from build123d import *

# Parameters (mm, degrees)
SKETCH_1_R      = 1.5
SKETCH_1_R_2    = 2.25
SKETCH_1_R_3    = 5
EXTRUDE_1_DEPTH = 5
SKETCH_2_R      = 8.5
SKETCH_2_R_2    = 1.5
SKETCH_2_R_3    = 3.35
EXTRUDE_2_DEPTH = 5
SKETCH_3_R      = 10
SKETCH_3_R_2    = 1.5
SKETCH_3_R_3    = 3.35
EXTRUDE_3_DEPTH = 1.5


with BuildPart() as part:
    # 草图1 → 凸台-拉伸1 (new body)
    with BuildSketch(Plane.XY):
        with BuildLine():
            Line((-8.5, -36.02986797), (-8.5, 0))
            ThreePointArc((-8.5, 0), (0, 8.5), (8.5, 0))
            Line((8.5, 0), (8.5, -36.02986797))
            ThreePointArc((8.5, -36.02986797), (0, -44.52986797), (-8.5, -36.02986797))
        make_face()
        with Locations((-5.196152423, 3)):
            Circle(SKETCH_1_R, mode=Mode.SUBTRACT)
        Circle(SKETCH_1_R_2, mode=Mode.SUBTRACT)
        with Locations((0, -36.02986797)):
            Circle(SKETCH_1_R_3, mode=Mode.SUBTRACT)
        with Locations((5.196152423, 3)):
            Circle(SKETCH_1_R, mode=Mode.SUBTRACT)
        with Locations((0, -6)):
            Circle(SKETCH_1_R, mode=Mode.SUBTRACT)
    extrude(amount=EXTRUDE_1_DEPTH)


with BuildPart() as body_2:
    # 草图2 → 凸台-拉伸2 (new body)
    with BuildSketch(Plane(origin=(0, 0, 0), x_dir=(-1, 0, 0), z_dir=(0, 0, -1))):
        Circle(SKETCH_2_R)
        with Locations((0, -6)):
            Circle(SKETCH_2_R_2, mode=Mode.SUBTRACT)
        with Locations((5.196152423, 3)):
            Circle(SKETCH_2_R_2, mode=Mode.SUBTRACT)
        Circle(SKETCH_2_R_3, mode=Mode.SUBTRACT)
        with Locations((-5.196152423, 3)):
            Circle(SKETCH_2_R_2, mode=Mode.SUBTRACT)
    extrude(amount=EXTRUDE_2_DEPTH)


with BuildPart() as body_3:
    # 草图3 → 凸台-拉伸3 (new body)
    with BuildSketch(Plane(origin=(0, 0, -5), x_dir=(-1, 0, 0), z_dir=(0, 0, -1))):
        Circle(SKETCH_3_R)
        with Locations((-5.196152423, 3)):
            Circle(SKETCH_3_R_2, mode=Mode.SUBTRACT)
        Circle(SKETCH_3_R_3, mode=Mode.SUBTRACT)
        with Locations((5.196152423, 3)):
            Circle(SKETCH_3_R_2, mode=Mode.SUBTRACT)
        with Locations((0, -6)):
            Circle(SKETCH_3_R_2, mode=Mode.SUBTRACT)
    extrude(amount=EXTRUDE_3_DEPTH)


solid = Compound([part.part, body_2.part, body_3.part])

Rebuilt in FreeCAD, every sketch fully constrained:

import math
import FreeCAD as App
import Part
import Sketcher

V = App.Vector
Q = App.Units.Quantity

doc = App.newDocument("Part")
body = doc.addObject("PartDesign::Body", "Body")

# Sketch on XY plane
sketch1 = body.newObject("Sketcher::SketchObject", "Sketch")
sketch1.AttachmentSupport = (doc.getObject("XY_Plane"), [""])
sketch1.MapMode = "FlatFace"
sketch1.addGeometry([
    Part.LineSegment(V(-8.5, 0, 0), V(-8.5, -36, 0)),  # 0
    Part.ArcOfCircle(Part.Circle(V(0, -36, 0), V(0, 0, 1), 8.5), math.radians(180), math.radians(360)),  # 1
    Part.LineSegment(V(8.5, -36, 0), V(8.5, 0, 0)),  # 2
    Part.ArcOfCircle(Part.Circle(V(0, 0, 0), V(0, 0, 1), 8.5), math.radians(0), math.radians(180)),  # 3
    Part.Circle(V(0, -36, 0), V(0, 0, 1), 5),  # 4
    Part.Circle(V(5.2, 3, 0), V(0, 0, 1), 1.5),  # 5
    Part.Circle(V(0, -6, 0), V(0, 0, 1), 1.5),  # 6
    Part.Circle(V(0, 0, 0), V(0, 0, 1), 2.2),  # 7
    Part.Circle(V(-5.2, 3, 0), V(0, 0, 1), 1.5),  # 8
], False)
sketch1.addConstraint([
    Sketcher.Constraint("Tangent", 0, 2, 1, 1),
    Sketcher.Constraint("Tangent", 1, 2, 2, 1),
    Sketcher.Constraint("Tangent", 2, 2, 3, 1),
    Sketcher.Constraint("Tangent", 3, 2, 0, 1),
    Sketcher.Constraint("Vertical", 0),
    Sketcher.Constraint("Vertical", 2),
    Sketcher.Constraint("Coincident", 3, 3, -1, 1),
    Sketcher.Constraint("Coincident", 7, 3, -1, 1),
    Sketcher.Constraint("Coincident", 4, 3, 1, 3),
    Sketcher.Constraint("Equal", 5, 6),
    Sketcher.Constraint("Equal", 6, 8),
    Sketcher.Constraint("Symmetric", 5, 3, 8, 3, -2),
    Sketcher.Constraint("PointOnObject", 6, 3, -2),
    Sketcher.Constraint("Diameter", 4, Q("10 mm")),
    Sketcher.Constraint("Diameter", 5, Q("3 mm")),
    Sketcher.Constraint("Diameter", 7, Q("4.5 mm")),
    Sketcher.Constraint("Radius", 1, Q("8.5 mm")),
    Sketcher.Constraint("DistanceY", -1, 1, 5, 3, Q("3 mm")),
    Sketcher.Constraint("DistanceY", 6, 3, -1, 1, Q("6 mm")),
    Sketcher.Constraint("DistanceY", 0, 2, 0, 1, Q("36.029868 mm")),
    Sketcher.Constraint("DistanceX", -1, 1, 5, 3, Q("5.196152 mm")),
])
pad1 = body.newObject("PartDesign::Pad", "Pad")
pad1.Profile = sketch1
pad1.Length = 5
body2 = doc.addObject("PartDesign::Body", "Body001")

# Sketch on XY plane
sketch2 = body2.newObject("Sketcher::SketchObject", "Sketch001")
sketch2.AttachmentSupport = (doc.getObject("XY_Plane001"), [""])
sketch2.MapMode = "FlatFace"
sketch2.addGeometry([
    Part.Circle(V(0, 0, 0), V(0, 0, 1), 8.5),  # 0
    Part.Circle(V(0, -6, 0), V(0, 0, 1), 1.5),  # 1
    Part.Circle(V(0, 0, 0), V(0, 0, 1), 3.4),  # 2
    Part.Circle(V(5.2, 3, 0), V(0, 0, 1), 1.5),  # 3
    Part.Circle(V(-5.2, 3, 0), V(0, 0, 1), 1.5),  # 4
], False)
sketch2.addConstraint([
    Sketcher.Constraint("Coincident", 0, 3, -1, 1),
    Sketcher.Constraint("Coincident", 2, 3, -1, 1),
    Sketcher.Constraint("Equal", 1, 3),
    Sketcher.Constraint("Equal", 3, 4),
    Sketcher.Constraint("Symmetric", 3, 3, 4, 3, -2),
    Sketcher.Constraint("PointOnObject", 1, 3, -2),
    Sketcher.Constraint("Diameter", 0, Q("17 mm")),
    Sketcher.Constraint("Diameter", 1, Q("3 mm")),
    Sketcher.Constraint("Diameter", 2, Q("6.7 mm")),
    Sketcher.Constraint("DistanceY", 1, 3, -1, 1, Q("6 mm")),
    Sketcher.Constraint("DistanceY", -1, 1, 3, 3, Q("3 mm")),
    Sketcher.Constraint("DistanceX", -1, 1, 3, 3, Q("5.196152 mm")),
])
pad2 = body2.newObject("PartDesign::Pad", "Pad001")
pad2.Profile = sketch2
pad2.Length = 5
pad2.Reversed = True
body3 = doc.addObject("PartDesign::Body", "Body002")

# Sketch on XY plane
sketch3 = body3.newObject("Sketcher::SketchObject", "Sketch002")
sketch3.AttachmentSupport = (doc.getObject("XY_Plane002"), [""])
sketch3.MapMode = "FlatFace"
sketch3.AttachmentOffset = App.Placement(V(0, 0, -5), App.Rotation())
sketch3.addGeometry([
    Part.Circle(V(0, 0, 0), V(0, 0, 1), 10),  # 0
    Part.Circle(V(0, -6, 0), V(0, 0, 1), 1.5),  # 1
    Part.Circle(V(0, 0, 0), V(0, 0, 1), 3.4),  # 2
    Part.Circle(V(5.2, 3, 0), V(0, 0, 1), 1.5),  # 3
    Part.Circle(V(-5.2, 3, 0), V(0, 0, 1), 1.5),  # 4
], False)
sketch3.addConstraint([
    Sketcher.Constraint("Coincident", 0, 3, -1, 1),
    Sketcher.Constraint("Coincident", 2, 3, -1, 1),
    Sketcher.Constraint("Equal", 1, 3),
    Sketcher.Constraint("Equal", 3, 4),
    Sketcher.Constraint("Symmetric", 3, 3, 4, 3, -2),
    Sketcher.Constraint("PointOnObject", 1, 3, -2),
    Sketcher.Constraint("Diameter", 0, Q("20 mm")),
    Sketcher.Constraint("Diameter", 1, Q("3 mm")),
    Sketcher.Constraint("Diameter", 2, Q("6.7 mm")),
    Sketcher.Constraint("DistanceY", 1, 3, -1, 1, Q("6 mm")),
    Sketcher.Constraint("DistanceY", -1, 1, 3, 3, Q("3 mm")),
    Sketcher.Constraint("DistanceX", -1, 1, 3, 3, Q("5.196152 mm")),
])
pad3 = body3.newObject("PartDesign::Pad", "Pad002")
pad3.Profile = sketch3
pad3.Length = 1.5
pad3.Reversed = True

doc.recompute()
